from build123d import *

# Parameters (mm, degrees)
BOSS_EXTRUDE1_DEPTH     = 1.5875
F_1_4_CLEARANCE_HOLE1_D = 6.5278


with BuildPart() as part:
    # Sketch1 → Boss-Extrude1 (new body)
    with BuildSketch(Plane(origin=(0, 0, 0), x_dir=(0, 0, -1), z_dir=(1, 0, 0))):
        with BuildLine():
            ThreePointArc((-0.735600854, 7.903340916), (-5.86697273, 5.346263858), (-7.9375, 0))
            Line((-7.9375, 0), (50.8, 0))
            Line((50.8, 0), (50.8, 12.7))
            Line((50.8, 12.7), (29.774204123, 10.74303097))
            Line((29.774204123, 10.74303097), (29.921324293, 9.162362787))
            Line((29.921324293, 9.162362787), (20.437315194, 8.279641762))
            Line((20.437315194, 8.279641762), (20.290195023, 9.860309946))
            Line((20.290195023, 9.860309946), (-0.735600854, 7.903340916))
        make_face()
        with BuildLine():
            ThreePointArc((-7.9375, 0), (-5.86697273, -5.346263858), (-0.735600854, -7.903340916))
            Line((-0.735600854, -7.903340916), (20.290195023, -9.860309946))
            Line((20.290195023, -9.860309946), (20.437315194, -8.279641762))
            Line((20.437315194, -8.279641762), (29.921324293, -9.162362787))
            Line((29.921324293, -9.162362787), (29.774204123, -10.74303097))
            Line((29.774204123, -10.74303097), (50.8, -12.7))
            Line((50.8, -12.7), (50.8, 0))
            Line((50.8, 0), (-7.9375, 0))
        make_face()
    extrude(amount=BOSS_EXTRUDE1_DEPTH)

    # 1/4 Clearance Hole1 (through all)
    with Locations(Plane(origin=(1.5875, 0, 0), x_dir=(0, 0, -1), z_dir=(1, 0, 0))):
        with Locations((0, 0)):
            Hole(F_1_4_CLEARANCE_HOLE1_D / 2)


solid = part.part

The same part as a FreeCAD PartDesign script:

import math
import FreeCAD as App
import Part
import Sketcher
from FreeCAD import Vector
Q = App.Units.Quantity

doc = App.newDocument("Part")
body = doc.addObject("PartDesign::Body", "Body")

# Sketch on YZ plane
sketch1 = doc.addObject("Sketcher::SketchObject", "Sketch")
body.addObject(sketch1)
sketch1.AttachmentSupport = (doc.YZ_Plane, [""])
sketch1.MapMode = "FlatFace"
sketch1.addGeometry([
    Part.ArcOfCircle(Part.Circle(Vector(0, 0, 0), Vector(0, 0, 1), 7.9), math.radians(5), math.radians(90)),  # 0
    Part.ArcOfCircle(Part.Circle(Vector(0, 0, 0), Vector(0, 0, 1), 7.9), math.radians(90), math.radians(175)),  # 1
    Part.LineSegment(Vector(-7.9, 0.7, 0), Vector(-9.9, -20.3, 0)),  # 2
    Part.LineSegment(Vector(-9.9, -20.3, 0), Vector(-8.3, -20.4, 0)),  # 3
    Part.LineSegment(Vector(-8.3, -20.4, 0), Vector(-9.2, -29.9, 0)),  # 4
    Part.LineSegment(Vector(-9.2, -29.9, 0), Vector(-10.7, -29.8, 0)),  # 5
    Part.LineSegment(Vector(-10.7, -29.8, 0), Vector(-12.7, -50.8, 0)),  # 6
    Part.LineSegment(Vector(-12.7, -50.8, 0), Vector(12.7, -50.8, 0)),  # 7
    Part.LineSegment(Vector(12.7, -50.8, 0), Vector(10.7, -29.8, 0)),  # 8
    Part.LineSegment(Vector(10.7, -29.8, 0), Vector(9.2, -29.9, 0)),  # 9
    Part.LineSegment(Vector(9.2, -29.9, 0), Vector(8.3, -20.4, 0)),  # 10
    Part.LineSegment(Vector(8.3, -20.4, 0), Vector(9.9, -20.3, 0)),  # 11
    Part.LineSegment(Vector(9.9, -20.3, 0), Vector(7.9, 0.7, 0)),  # 12
], False)
sketch1.addConstraint([
    Sketcher.Constraint("Tangent", 0, 2, 1, 1),
    Sketcher.Constraint("Tangent", 1, 2, 2, 1),
    Sketcher.Constraint("Coincident", 2, 2, 3, 1),
    Sketcher.Constraint("Coincident", 3, 2, 4, 1),
    Sketcher.Constraint("Coincident", 4, 2, 5, 1),
    Sketcher.Constraint("Coincident", 5, 2, 6, 1),
    Sketcher.Constraint("Coincident", 6, 2, 7, 1),
    Sketcher.Constraint("Coincident", 7, 2, 8, 1),
    Sketcher.Constraint("Coincident", 8, 2, 9, 1),
    Sketcher.Constraint("Coincident", 9, 2, 10, 1),
    Sketcher.Constraint("Coincident", 10, 2, 11, 1),
    Sketcher.Constraint("Coincident", 11, 2, 12, 1),
    Sketcher.Constraint("Tangent", 12, 2, 0, 1),
    Sketcher.Constraint("Horizontal", 7),
    Sketcher.Constraint("Coincident", 0, 3, -1, 1),
    Sketcher.Constraint("Equal", 0, 1),
    Sketcher.Constraint("Symmetric", 5, 2, 8, 2, -2),
    Sketcher.Constraint("Symmetric", 4, 2, 9, 2, -2),
    Sketcher.Constraint("Symmetric", 3, 2, 10, 2, -2),
    Sketcher.Constraint("Symmetric", 2, 2, 11, 2, -2),
    Sketcher.Constraint("PointOnObject", 0, 2, -2),
    Sketcher.Constraint("Perpendicular", 2, 3),
    Sketcher.Constraint("Perpendicular", 3, 4),
    Sketcher.Constraint("Perpendicular", 4, 5),
    Sketcher.Constraint("Perpendicular", 5, 6),
    Sketcher.Constraint("Perpendicular", 8, 9),
    Sketcher.Constraint("Equal", 3, 5),
    Sketcher.Constraint("Equal", 2, 6),
    Sketcher.Constraint("DistanceX", 7, 1, 7, 2, Q("1 in")),
    Sketcher.Constraint("DistanceY", 6, 2, -1, 1, Q("2 in")),
    Sketcher.Constraint("Radius", 0, Q("0.3125 in")),
    Sketcher.Constraint("Distance", 3, Q("0.0625 in")),
    Sketcher.Constraint("Distance", 4, Q("0.375 in")),
])
pad1 = doc.addObject("PartDesign::Pad", "Pad")
body.addObject(pad1)
pad1.Profile = sketch1
pad1.Length = Q("0.0625 in")

# Sketch on YZ plane
sketch2 = doc.addObject("Sketcher::SketchObject", "Sketch001")
body.addObject(sketch2)
sketch2.AttachmentSupport = (doc.YZ_Plane, [""])
sketch2.MapMode = "FlatFace"
sketch2.AttachmentOffset = App.Placement(Vector(0, 0, 0.0625 * 25.4), App.Rotation())
sketch2.addGeometry(Part.Circle(Vector(0, 0, 0), Vector(0, 0, 1), 3.3), False)
sketch2.addConstraint([
    Sketcher.Constraint("Coincident", 0, 3, -1, 1),
    Sketcher.Constraint("Diameter", 0, Q("0.257 in")),
])
doc.recompute()
hole = doc.addObject("PartDesign::Hole", "Hole")
body.addObject(hole)
hole.Profile = sketch2
hole.ThreadType = "None"
hole.Diameter = Q("0.257 in")
hole.DepthType = "ThroughAll"

doc.recompute()
